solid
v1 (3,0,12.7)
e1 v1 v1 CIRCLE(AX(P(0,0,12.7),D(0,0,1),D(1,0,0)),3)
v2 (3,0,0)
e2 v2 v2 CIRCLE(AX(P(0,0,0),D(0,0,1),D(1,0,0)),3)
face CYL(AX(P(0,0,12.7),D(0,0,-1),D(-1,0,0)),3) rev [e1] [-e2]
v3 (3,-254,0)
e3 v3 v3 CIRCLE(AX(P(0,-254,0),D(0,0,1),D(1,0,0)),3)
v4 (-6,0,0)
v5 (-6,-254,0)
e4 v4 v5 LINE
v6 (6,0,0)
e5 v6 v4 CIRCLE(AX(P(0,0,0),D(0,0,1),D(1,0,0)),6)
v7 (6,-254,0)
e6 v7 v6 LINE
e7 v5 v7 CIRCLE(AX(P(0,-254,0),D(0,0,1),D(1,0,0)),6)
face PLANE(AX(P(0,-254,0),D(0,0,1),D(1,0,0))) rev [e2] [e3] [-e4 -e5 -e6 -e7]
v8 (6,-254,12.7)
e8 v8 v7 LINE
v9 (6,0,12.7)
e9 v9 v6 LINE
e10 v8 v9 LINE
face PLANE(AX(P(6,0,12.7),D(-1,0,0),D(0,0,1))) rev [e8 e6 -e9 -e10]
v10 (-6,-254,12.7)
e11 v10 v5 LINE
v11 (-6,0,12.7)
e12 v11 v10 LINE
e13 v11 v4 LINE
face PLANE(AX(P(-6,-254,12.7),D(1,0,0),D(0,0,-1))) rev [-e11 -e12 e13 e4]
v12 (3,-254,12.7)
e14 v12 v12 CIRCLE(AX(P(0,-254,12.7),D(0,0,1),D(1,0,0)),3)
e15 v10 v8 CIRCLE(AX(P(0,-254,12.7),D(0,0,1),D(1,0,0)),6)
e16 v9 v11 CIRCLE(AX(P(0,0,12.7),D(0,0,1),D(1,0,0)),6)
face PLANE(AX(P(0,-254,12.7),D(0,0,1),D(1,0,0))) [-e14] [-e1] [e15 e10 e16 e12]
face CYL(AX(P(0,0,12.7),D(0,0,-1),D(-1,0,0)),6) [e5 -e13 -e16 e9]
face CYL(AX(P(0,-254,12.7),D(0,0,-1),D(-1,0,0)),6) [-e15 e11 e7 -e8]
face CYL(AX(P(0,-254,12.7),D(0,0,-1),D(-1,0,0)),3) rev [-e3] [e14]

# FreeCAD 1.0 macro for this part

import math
import FreeCAD as App
import Part
import Sketcher
from FreeCAD import Vector

doc = App.newDocument("Part")
body = doc.addObject("PartDesign::Body", "Body")

# Sketch on XY plane
sketch1 = body.newObject("Sketcher::SketchObject", "Sketch")
sketch1.AttachmentSupport = (doc.getObject("XY_Plane"), [""])
sketch1.MapMode = "FlatFace"
sketch1.addGeometry([
    Part.LineSegment(Vector(-6, 0, 0), Vector(-6, -254, 0)),  # 0
    Part.ArcOfCircle(Part.Circle(Vector(0, -254, 0), Vector(0, 0, 1), 6), math.radians(180), math.radians(360)),  # 1
    Part.LineSegment(Vector(6, -254, 0), Vector(6, 0, 0)),  # 2
    Part.ArcOfCircle(Part.Circle(Vector(0, 0, 0), Vector(0, 0, 1), 6), math.radians(0), math.radians(180)),  # 3
    Part.Circle(Vector(0, -254, 0), Vector(0, 0, 1), 3),  # 4
    Part.Circle(Vector(0, 0, 0), Vector(0, 0, 1), 3),  # 5
], False)
sketch1.addConstraint([
    Sketcher.Constraint("Tangent", 0, 2, 1, 1),
    Sketcher.Constraint("Tangent", 1, 2, 2, 1),
    Sketcher.Constraint("Tangent", 2, 2, 3, 1),
    Sketcher.Constraint("Tangent", 3, 2, 0, 1),
    Sketcher.Constraint("Vertical", 0),
    Sketcher.Constraint("Vertical", 2),
    Sketcher.Constraint("Coincident", 3, 3, -1, 1),
    Sketcher.Constraint("Coincident", 5, 3, -1, 1),
    Sketcher.Constraint("Coincident", 4, 3, 1, 3),
    Sketcher.Constraint("Equal", 4, 5),
    Sketcher.Constraint("Diameter", 4, 6.0),
    Sketcher.Constraint("Radius", 1, 6.0),
    Sketcher.Constraint("DistanceY", 0, 2, 0, 1, 254.0),
])
pad1 = body.newObject("PartDesign::Pad", "Pad")
pad1.Profile = sketch1
pad1.Length = 12.7

doc.recompute()
